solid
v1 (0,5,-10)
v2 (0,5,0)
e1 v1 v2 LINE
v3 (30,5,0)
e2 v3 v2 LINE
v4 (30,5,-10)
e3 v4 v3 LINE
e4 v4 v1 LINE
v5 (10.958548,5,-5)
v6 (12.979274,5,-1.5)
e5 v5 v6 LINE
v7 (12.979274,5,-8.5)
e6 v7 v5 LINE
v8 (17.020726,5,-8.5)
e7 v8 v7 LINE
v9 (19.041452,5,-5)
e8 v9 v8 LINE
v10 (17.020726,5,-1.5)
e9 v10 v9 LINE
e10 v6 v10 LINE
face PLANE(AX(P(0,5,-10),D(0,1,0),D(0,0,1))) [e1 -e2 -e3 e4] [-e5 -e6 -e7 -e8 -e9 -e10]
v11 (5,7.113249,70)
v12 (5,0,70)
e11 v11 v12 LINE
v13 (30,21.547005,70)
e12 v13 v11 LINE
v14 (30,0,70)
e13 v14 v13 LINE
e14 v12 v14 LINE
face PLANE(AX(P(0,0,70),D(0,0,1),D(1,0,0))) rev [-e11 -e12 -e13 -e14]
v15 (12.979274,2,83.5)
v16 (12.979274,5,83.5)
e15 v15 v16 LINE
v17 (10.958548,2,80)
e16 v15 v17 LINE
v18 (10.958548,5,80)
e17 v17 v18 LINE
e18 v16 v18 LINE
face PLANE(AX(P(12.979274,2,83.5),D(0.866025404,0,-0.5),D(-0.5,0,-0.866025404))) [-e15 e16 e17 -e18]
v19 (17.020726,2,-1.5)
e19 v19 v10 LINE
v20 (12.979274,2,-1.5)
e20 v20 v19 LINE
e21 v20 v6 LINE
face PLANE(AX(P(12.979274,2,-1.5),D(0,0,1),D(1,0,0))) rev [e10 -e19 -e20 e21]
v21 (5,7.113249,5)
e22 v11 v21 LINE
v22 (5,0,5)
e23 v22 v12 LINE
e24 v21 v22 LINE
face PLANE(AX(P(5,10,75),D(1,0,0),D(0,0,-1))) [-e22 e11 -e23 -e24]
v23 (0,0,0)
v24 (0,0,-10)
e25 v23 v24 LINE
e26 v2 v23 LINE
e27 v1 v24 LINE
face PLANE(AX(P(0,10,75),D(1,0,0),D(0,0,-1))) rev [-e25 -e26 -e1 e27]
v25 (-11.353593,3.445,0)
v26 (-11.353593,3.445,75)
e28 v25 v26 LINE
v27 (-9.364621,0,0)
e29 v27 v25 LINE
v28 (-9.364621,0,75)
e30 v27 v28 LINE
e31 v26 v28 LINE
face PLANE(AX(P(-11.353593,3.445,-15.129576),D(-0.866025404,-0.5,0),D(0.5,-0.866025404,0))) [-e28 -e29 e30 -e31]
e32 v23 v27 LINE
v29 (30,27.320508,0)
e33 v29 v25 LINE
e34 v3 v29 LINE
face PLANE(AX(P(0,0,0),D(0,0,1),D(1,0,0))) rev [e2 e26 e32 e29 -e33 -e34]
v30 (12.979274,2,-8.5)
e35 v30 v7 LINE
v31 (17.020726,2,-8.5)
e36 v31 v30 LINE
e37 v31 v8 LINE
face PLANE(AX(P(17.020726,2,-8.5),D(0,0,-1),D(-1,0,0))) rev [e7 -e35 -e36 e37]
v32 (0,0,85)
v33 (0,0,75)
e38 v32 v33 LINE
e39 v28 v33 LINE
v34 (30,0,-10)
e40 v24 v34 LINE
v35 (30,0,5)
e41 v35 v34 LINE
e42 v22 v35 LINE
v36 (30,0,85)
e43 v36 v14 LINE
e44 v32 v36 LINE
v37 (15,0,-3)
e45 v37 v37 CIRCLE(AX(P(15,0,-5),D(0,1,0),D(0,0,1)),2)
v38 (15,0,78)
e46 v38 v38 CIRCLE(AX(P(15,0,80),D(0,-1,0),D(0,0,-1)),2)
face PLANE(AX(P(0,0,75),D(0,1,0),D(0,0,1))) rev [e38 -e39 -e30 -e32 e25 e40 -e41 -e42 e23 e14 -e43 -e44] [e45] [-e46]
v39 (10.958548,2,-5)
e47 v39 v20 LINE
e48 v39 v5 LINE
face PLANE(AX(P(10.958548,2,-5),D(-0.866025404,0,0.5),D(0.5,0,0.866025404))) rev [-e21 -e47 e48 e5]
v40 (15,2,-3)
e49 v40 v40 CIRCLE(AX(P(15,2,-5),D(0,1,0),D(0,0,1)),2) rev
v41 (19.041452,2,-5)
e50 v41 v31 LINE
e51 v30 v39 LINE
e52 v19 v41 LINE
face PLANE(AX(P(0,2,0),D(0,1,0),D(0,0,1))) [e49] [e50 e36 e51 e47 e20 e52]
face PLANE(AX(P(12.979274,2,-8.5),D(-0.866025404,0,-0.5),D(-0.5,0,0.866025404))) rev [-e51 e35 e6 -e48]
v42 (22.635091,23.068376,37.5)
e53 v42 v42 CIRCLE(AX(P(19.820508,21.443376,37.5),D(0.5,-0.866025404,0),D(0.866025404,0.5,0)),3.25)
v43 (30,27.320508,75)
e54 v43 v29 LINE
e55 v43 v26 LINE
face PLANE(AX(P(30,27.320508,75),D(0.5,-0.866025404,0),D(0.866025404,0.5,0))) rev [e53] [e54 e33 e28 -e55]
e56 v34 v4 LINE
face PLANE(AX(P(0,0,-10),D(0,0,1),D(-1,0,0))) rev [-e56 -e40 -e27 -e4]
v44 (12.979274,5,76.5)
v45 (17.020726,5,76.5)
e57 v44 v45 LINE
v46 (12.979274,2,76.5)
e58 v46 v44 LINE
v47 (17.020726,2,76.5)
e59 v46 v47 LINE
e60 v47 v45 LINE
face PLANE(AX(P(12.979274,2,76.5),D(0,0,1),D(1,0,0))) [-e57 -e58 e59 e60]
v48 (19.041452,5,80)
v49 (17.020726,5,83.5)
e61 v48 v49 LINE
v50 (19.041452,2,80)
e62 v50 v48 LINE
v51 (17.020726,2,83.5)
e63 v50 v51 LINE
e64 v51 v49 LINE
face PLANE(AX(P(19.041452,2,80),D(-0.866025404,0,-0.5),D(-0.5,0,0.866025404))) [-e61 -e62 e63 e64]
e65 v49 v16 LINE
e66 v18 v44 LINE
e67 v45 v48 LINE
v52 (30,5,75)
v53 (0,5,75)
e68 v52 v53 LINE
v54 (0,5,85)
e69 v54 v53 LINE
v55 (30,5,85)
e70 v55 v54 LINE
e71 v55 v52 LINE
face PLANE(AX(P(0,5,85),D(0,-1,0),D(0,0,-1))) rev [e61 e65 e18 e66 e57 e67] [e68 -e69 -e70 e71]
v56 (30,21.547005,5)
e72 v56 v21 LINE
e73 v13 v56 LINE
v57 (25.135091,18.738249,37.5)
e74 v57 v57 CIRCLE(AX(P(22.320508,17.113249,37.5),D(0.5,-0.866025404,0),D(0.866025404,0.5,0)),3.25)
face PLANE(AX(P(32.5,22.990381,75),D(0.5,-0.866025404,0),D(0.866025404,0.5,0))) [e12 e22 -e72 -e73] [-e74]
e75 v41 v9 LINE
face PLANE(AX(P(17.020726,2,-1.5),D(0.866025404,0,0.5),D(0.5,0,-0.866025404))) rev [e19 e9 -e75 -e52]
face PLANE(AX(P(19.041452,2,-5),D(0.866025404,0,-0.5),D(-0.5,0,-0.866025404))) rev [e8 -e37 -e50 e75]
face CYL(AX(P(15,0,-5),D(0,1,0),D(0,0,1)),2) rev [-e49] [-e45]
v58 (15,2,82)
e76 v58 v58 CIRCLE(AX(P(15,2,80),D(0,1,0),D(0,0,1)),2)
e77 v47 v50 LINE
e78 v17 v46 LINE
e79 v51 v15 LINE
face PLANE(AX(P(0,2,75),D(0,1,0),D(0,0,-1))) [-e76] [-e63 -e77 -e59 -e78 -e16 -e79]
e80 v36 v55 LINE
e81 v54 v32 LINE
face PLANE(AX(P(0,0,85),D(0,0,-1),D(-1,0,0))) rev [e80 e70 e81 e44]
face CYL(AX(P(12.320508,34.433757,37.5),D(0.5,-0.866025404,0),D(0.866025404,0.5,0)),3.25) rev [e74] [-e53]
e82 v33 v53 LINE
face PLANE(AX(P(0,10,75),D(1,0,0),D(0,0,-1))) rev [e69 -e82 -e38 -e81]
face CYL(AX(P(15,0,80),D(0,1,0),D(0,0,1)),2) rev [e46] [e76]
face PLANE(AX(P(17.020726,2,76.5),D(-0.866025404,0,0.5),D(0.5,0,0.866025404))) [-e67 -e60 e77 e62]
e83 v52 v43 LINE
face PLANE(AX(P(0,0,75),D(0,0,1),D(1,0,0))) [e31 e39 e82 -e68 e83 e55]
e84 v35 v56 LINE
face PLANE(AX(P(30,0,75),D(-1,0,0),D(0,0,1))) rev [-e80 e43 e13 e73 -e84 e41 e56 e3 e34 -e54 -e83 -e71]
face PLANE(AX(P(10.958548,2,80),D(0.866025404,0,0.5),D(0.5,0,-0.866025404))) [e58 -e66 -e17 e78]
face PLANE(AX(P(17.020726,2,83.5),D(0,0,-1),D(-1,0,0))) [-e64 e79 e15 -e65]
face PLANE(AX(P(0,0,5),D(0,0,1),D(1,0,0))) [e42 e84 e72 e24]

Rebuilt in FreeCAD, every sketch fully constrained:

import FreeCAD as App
import Part
import Sketcher
Q = App.Units.Quantity


def faces_at(feature, points):
    """Names of the faces that lie closest to the given points."""
    faces = feature.Shape.Faces
    near = lambda p: min(range(len(faces)), key=lambda i: faces[i].distToShape(Part.Vertex(*p))[0])
    return sorted({f"Face{near(p) + 1}" for p in points})

doc = App.newDocument("Part")
params = doc.addObject("Spreadsheet::Sheet", "Params")
for row, (alias, value) in enumerate([
    ("sketch1_width", "30 mm"),
    ("sketch1_height", "10 mm"),
    ("pad1_length", "75 mm"),
    ("thickness_wall", "5 mm"),
    ("sketch2_width", "5 mm"),
    ("sketch2_height", "65 mm"),
    ("pocket1_length", "25 mm"),
    ("sketch3_diameter", "6.5 mm"),
    ("sketch4_width", "30 mm"),
    ("sketch4_height", "5 mm"),
    ("pad2_length", "10 mm"),
    ("sketch5_height", "10 mm"),
    ("sketch5_length", "13.11 mm"),
    ("pad3_length", "75 mm"),
    ("sketch6_diameter", "4 mm"),
    ("pocket4_length", "3 mm"),
], start=1):
    params.set(f"A{row}", alias)
    params.set(f"B{row}", "=" + value)
    params.setAlias(f"B{row}", alias)

body = doc.addObject("PartDesign::Body", "Body")

sketch1 = body.newObject("Sketcher::SketchObject", "Sketch")
sketch1.AttachmentSupport = (doc.getObject("XY_Plane"), [""])
sketch1.MapMode = "FlatFace"
sketch1.addGeometry([
    Part.LineSegment(App.Vector(0, 0, 0), App.Vector(30, 0, 0)),
    Part.LineSegment(App.Vector(30, 0, 0), App.Vector(30, 27, 0)),
    Part.LineSegment(App.Vector(30, 27, 0), App.Vector(0, 10, 0)),
    Part.LineSegment(App.Vector(0, 10, 0), App.Vector(0, 0, 0)),
], False)
sketch1.addConstraint([
    Sketcher.Constraint("Coincident", 0, 2, 1, 1),
    Sketcher.Constraint("Coincident", 1, 2, 2, 1),
    Sketcher.Constraint("Coincident", 2, 2, 3, 1),
    Sketcher.Constraint("Coincident", 3, 2, 0, 1),
    Sketcher.Constraint("Horizontal", 0),
    Sketcher.Constraint("Vertical", 1),
    Sketcher.Constraint("Vertical", 3),
    Sketcher.Constraint("Coincident", 3, 2, -1, 1),
    Sketcher.Constraint("DistanceX", 0, 1, 0, 2, 30.0),
    Sketcher.Constraint("DistanceY", 3, 2, 3, 1, 10.0),
    Sketcher.Constraint("Angle", 2, Q("-150 deg")),
])
sketch1.setExpression("Constraints[8]", "Params.sketch1_width")
sketch1.setExpression("Constraints[9]", "Params.sketch1_height")
pad1 = body.newObject("PartDesign::Pad", "Pad")
pad1.Profile = sketch1
pad1.setExpression("Length", "Params.pad1_length")
doc.recompute()

thickness = body.newObject("PartDesign::Thickness", "Thickness")
thickness.Base = (pad1, faces_at(pad1, [(30, 13.66, 37.5)]))
thickness.setExpression("Value", "Params.thickness_wall")
thickness.Reversed = True
thickness.Join = "Intersection"

sketch2 = body.newObject("Sketcher::SketchObject", "Sketch001")
sketch2.AttachmentSupport = (doc.getObject("YZ_Plane"), [""])
sketch2.MapMode = "FlatFace"
sketch2.AttachmentOffset = App.Placement(App.Vector(0, 0, 30), App.Rotation())
sketch2.addGeometry([
    Part.LineSegment(App.Vector(5, 70, 0), App.Vector(0, 70, 0)),
    Part.LineSegment(App.Vector(0, 70, 0), App.Vector(0, 5, 0)),
    Part.LineSegment(App.Vector(0, 5, 0), App.Vector(5, 5, 0)),
    Part.LineSegment(App.Vector(5, 5, 0), App.Vector(5, 70, 0)),
], False)
sketch2.addConstraint([
    Sketcher.Constraint("Coincident", 0, 2, 1, 1),
    Sketcher.Constraint("Coincident", 1, 2, 2, 1),
    Sketcher.Constraint("Coincident", 2, 2, 3, 1),
    Sketcher.Constraint("Coincident", 3, 2, 0, 1),
    Sketcher.Constraint("Horizontal", 0),
    Sketcher.Constraint("Vertical", 1),
    Sketcher.Constraint("Horizontal", 2),
    Sketcher.Constraint("Vertical", 3),
    Sketcher.Constraint("PointOnObject", 0, 2, -2),
    Sketcher.Constraint("DistanceX", 0, 2, 0, 1, 5.0),
    Sketcher.Constraint("DistanceY", 1, 2, 1, 1, 65.0),
    Sketcher.Constraint("DistanceY", -1, 1, 0, 2, 70.0),
])
sketch2.setExpression("Constraints[9]", "Params.sketch2_width")
sketch2.setExpression("Constraints[10]", "Params.sketch2_height")
pocket1 = body.newObject("PartDesign::Pocket", "Pocket")
pocket1.Profile = sketch2
pocket1.setExpression("Length", "Params.pocket1_length")

sketch3 = body.newObject("Sketcher::SketchObject", "Sketch002")
sketch3.Placement = App.Placement(App.Vector(-1.830127, 3.169873, 0), App.Rotation(App.Vector(0.866025404, 0.5, 0), App.Vector(0, 0, 1), App.Vector(0.5, -0.866025404, 0), "ZXY"))
sketch3.addGeometry(Part.Circle(App.Vector(27.9, 37.5, 0), App.Vector(0, 0, 1), 3.2), False)
sketch3.addConstraint([
    Sketcher.Constraint("Diameter", 0, 6.5),
    Sketcher.Constraint("DistanceY", -1, 1, 0, 3, 37.5),
    Sketcher.Constraint("DistanceX", -1, 1, 0, 3, 27.886751),
])
sketch3.setExpression("Constraints[0]", "Params.sketch3_diameter")
pocket2 = body.newObject("PartDesign::Pocket", "Pocket001")
pocket2.Profile = sketch3
pocket2.Type = "ThroughAll"

sketch4 = body.newObject("Sketcher::SketchObject", "Sketch003")
sketch4.AttachmentSupport = (doc.getObject("XY_Plane"), [""])
sketch4.MapMode = "FlatFace"
sketch4.AttachmentOffset = App.Placement(App.Vector(0, 0, 75), App.Rotation())
sketch4.addGeometry([
    Part.LineSegment(App.Vector(0, 5, 0), App.Vector(0, 0, 0)),
    Part.LineSegment(App.Vector(0, 0, 0), App.Vector(30, 0, 0)),
    Part.LineSegment(App.Vector(30, 0, 0), App.Vector(30, 5, 0)),
    Part.LineSegment(App.Vector(30, 5, 0), App.Vector(0, 5, 0)),
], False)
sketch4.addConstraint([
    Sketcher.Constraint("Coincident", 0, 2, 1, 1),
    Sketcher.Constraint("Coincident", 1, 2, 2, 1),
    Sketcher.Constraint("Coincident", 2, 2, 3, 1),
    Sketcher.Constraint("Coincident", 3, 2, 0, 1),
    Sketcher.Constraint("Vertical", 0),
    Sketcher.Constraint("Horizontal", 1),
    Sketcher.Constraint("Vertical", 2),
    Sketcher.Constraint("Horizontal", 3),
    Sketcher.Constraint("Coincident", 0, 2, -1, 1),
    Sketcher.Constraint("DistanceX", 1, 1, 1, 2, 30.0),
    Sketcher.Constraint("DistanceY", 0, 2, 0, 1, 5.0),
])
sketch4.setExpression("Constraints[9]", "Params.sketch4_width")
sketch4.setExpression("Constraints[10]", "Params.sketch4_height")
pad2 = body.newObject("PartDesign::Pad", "Pad001")
pad2.Profile = sketch4
pad2.setExpression("Length", "Params.pad2_length")
doc.recompute()

datumplane = body.newObject("PartDesign::Plane", "DatumPlane")
datumplane.AttachmentSupport = (doc.getObject("XY_Plane"), [""])
datumplane.MapMode = "FlatFace"
datumplane.AttachmentOffset = App.Placement(App.Vector(0, 0, 37.5), App.Rotation())
mirrored = body.newObject("PartDesign::Mirrored", "Mirrored")
mirrored.Originals = [pad2]
mirrored.MirrorPlane = (datumplane, [""])
body.Tip = mirrored

sketch5 = body.newObject("Sketcher::SketchObject", "Sketch004")
sketch5.AttachmentSupport = (doc.getObject("XY_Plane"), [""])
sketch5.MapMode = "FlatFace"
sketch5.AttachmentOffset = App.Placement(App.Vector(0, 0, 75), App.Rotation())
sketch5.addGeometry([
    Part.LineSegment(App.Vector(0, 10, 0), App.Vector(-11.4, 3.4, 0)),
    Part.LineSegment(App.Vector(-11.4, 3.4, 0), App.Vector(-9.4, 0, 0)),
    Part.LineSegment(App.Vector(-9.4, 0, 0), App.Vector(0, 0, 0)),
    Part.LineSegment(App.Vector(0, 0, 0), App.Vector(0, 10, 0)),
], False)
sketch5.addConstraint([
    Sketcher.Constraint("Coincident", 0, 2, 1, 1),
    Sketcher.Constraint("Coincident", 1, 2, 2, 1),
    Sketcher.Constraint("Coincident", 2, 2, 3, 1),
    Sketcher.Constraint("Coincident", 3, 2, 0, 1),
    Sketcher.Constraint("Horizontal", 2),
    Sketcher.Constraint("Vertical", 3),
    Sketcher.Constraint("Coincident", 2, 2, -1, 1),
    Sketcher.Constraint("Perpendicular", 0, 1),
    Sketcher.Constraint("DistanceY", 3, 1, 3, 2, 10.0),
    Sketcher.Constraint("Angle", 0, Q("-150 deg")),
    Sketcher.Constraint("Distance", 0, 13.11),
])
sketch5.setExpression("Constraints[8]", "Params.sketch5_height")
sketch5.setExpression("Constraints[10]", "Params.sketch5_length")
pad3 = body.newObject("PartDesign::Pad", "Pad002")
pad3.Profile = sketch5
pad3.setExpression("Length", "Params.pad3_length")
pad3.Reversed = True

sketch6 = body.newObject("Sketcher::SketchObject", "Sketch005")
sketch6.AttachmentSupport = (doc.getObject("XZ_Plane"), [""])
sketch6.MapMode = "FlatFace"
sketch6.AttachmentOffset = App.Placement(App.Vector(0, 0, -5), App.Rotation())
sketch6.addGeometry(Part.Circle(App.Vector(15, -5, 0), App.Vector(0, 0, 1), 2), False)
sketch6.addConstraint([
    Sketcher.Constraint("Diameter", 0, 4.0),
    Sketcher.Constraint("DistanceX", -1, 1, 0, 3, 15.0),
    Sketcher.Constraint("DistanceY", 0, 3, -1, 1, 5.0),
])
sketch6.setExpression("Constraints[0]", "Params.sketch6_diameter")
pocket3 = body.newObject("PartDesign::Pocket", "Pocket002")
pocket3.Profile = sketch6
pocket3.Type = "ThroughAll"
pocket3.Reversed = True

sketch7 = body.newObject("Sketcher::SketchObject", "Sketch006")
sketch7.AttachmentSupport = (doc.getObject("XZ_Plane"), [""])
sketch7.MapMode = "FlatFace"
sketch7.AttachmentOffset = App.Placement(App.Vector(0, 0, -5), App.Rotation())
sketch7.addGeometry([
    Part.LineSegment(App.Vector(17, -8.5, 0), App.Vector(13, -8.5, 0)),
    Part.LineSegment(App.Vector(13, -8.5, 0), App.Vector(11, -5, 0)),
    Part.LineSegment(App.Vector(11, -5, 0), App.Vector(13, -1.5, 0)),
    Part.LineSegment(App.Vector(13, -1.5, 0), App.Vector(17, -1.5, 0)),
    Part.LineSegment(App.Vector(17, -1.5, 0), App.Vector(19, -5, 0)),
    Part.LineSegment(App.Vector(19, -5, 0), App.Vector(17, -8.5, 0)),
], False)
sketch7.addConstraint([
    Sketcher.Constraint("Coincident", 0, 2, 1, 1),
    Sketcher.Constraint("Coincident", 1, 2, 2, 1),
    Sketcher.Constraint("Coincident", 2, 2, 3, 1),
    Sketcher.Constraint("Coincident", 3, 2, 4, 1),
    Sketcher.Constraint("Coincident", 4, 2, 5, 1),
    Sketcher.Constraint("Coincident", 5, 2, 0, 1),
    Sketcher.Constraint("Horizontal", 0),
    Sketcher.Constraint("Horizontal", 3),
    Sketcher.Constraint("Parallel", 1, 4),
    Sketcher.Constraint("Parallel", 2, 5),
    Sketcher.Constraint("Horizontal", 1, 2, 4, 2),
    Sketcher.Constraint("Vertical", 0, 2, 2, 2),
    Sketcher.Constraint("Vertical", 3, 2, 5, 2),
    Sketcher.Constraint("Angle", 1, Q("120 deg")),
    Sketcher.Constraint("DistanceY", 1, 2, -1, 1, 5.0),
    Sketcher.Constraint("DistanceY", 0, 2, 2, 2, 7.0),
    Sketcher.Constraint("DistanceX", 0, 2, 0, 1, 4.041452),
    Sketcher.Constraint("DistanceX", -1, 1, 1, 2, 10.958548),
])
pocket4 = body.newObject("PartDesign::Pocket", "Pocket003")
pocket4.Profile = sketch7
pocket4.setExpression("Length", "Params.pocket4_length")
pocket4.Reversed = True
doc.recompute()

datumplane2 = body.newObject("PartDesign::Plane", "DatumPlane001")
datumplane2.AttachmentSupport = (doc.getObject("XY_Plane"), [""])
datumplane2.MapMode = "FlatFace"
datumplane2.AttachmentOffset = App.Placement(App.Vector(0, 0, 37.5), App.Rotation())
mirrored2 = body.newObject("PartDesign::Mirrored", "Mirrored001")
mirrored2.Originals = [pocket3, pocket4]
mirrored2.MirrorPlane = (datumplane2, [""])
body.Tip = mirrored2

doc.recompute()
